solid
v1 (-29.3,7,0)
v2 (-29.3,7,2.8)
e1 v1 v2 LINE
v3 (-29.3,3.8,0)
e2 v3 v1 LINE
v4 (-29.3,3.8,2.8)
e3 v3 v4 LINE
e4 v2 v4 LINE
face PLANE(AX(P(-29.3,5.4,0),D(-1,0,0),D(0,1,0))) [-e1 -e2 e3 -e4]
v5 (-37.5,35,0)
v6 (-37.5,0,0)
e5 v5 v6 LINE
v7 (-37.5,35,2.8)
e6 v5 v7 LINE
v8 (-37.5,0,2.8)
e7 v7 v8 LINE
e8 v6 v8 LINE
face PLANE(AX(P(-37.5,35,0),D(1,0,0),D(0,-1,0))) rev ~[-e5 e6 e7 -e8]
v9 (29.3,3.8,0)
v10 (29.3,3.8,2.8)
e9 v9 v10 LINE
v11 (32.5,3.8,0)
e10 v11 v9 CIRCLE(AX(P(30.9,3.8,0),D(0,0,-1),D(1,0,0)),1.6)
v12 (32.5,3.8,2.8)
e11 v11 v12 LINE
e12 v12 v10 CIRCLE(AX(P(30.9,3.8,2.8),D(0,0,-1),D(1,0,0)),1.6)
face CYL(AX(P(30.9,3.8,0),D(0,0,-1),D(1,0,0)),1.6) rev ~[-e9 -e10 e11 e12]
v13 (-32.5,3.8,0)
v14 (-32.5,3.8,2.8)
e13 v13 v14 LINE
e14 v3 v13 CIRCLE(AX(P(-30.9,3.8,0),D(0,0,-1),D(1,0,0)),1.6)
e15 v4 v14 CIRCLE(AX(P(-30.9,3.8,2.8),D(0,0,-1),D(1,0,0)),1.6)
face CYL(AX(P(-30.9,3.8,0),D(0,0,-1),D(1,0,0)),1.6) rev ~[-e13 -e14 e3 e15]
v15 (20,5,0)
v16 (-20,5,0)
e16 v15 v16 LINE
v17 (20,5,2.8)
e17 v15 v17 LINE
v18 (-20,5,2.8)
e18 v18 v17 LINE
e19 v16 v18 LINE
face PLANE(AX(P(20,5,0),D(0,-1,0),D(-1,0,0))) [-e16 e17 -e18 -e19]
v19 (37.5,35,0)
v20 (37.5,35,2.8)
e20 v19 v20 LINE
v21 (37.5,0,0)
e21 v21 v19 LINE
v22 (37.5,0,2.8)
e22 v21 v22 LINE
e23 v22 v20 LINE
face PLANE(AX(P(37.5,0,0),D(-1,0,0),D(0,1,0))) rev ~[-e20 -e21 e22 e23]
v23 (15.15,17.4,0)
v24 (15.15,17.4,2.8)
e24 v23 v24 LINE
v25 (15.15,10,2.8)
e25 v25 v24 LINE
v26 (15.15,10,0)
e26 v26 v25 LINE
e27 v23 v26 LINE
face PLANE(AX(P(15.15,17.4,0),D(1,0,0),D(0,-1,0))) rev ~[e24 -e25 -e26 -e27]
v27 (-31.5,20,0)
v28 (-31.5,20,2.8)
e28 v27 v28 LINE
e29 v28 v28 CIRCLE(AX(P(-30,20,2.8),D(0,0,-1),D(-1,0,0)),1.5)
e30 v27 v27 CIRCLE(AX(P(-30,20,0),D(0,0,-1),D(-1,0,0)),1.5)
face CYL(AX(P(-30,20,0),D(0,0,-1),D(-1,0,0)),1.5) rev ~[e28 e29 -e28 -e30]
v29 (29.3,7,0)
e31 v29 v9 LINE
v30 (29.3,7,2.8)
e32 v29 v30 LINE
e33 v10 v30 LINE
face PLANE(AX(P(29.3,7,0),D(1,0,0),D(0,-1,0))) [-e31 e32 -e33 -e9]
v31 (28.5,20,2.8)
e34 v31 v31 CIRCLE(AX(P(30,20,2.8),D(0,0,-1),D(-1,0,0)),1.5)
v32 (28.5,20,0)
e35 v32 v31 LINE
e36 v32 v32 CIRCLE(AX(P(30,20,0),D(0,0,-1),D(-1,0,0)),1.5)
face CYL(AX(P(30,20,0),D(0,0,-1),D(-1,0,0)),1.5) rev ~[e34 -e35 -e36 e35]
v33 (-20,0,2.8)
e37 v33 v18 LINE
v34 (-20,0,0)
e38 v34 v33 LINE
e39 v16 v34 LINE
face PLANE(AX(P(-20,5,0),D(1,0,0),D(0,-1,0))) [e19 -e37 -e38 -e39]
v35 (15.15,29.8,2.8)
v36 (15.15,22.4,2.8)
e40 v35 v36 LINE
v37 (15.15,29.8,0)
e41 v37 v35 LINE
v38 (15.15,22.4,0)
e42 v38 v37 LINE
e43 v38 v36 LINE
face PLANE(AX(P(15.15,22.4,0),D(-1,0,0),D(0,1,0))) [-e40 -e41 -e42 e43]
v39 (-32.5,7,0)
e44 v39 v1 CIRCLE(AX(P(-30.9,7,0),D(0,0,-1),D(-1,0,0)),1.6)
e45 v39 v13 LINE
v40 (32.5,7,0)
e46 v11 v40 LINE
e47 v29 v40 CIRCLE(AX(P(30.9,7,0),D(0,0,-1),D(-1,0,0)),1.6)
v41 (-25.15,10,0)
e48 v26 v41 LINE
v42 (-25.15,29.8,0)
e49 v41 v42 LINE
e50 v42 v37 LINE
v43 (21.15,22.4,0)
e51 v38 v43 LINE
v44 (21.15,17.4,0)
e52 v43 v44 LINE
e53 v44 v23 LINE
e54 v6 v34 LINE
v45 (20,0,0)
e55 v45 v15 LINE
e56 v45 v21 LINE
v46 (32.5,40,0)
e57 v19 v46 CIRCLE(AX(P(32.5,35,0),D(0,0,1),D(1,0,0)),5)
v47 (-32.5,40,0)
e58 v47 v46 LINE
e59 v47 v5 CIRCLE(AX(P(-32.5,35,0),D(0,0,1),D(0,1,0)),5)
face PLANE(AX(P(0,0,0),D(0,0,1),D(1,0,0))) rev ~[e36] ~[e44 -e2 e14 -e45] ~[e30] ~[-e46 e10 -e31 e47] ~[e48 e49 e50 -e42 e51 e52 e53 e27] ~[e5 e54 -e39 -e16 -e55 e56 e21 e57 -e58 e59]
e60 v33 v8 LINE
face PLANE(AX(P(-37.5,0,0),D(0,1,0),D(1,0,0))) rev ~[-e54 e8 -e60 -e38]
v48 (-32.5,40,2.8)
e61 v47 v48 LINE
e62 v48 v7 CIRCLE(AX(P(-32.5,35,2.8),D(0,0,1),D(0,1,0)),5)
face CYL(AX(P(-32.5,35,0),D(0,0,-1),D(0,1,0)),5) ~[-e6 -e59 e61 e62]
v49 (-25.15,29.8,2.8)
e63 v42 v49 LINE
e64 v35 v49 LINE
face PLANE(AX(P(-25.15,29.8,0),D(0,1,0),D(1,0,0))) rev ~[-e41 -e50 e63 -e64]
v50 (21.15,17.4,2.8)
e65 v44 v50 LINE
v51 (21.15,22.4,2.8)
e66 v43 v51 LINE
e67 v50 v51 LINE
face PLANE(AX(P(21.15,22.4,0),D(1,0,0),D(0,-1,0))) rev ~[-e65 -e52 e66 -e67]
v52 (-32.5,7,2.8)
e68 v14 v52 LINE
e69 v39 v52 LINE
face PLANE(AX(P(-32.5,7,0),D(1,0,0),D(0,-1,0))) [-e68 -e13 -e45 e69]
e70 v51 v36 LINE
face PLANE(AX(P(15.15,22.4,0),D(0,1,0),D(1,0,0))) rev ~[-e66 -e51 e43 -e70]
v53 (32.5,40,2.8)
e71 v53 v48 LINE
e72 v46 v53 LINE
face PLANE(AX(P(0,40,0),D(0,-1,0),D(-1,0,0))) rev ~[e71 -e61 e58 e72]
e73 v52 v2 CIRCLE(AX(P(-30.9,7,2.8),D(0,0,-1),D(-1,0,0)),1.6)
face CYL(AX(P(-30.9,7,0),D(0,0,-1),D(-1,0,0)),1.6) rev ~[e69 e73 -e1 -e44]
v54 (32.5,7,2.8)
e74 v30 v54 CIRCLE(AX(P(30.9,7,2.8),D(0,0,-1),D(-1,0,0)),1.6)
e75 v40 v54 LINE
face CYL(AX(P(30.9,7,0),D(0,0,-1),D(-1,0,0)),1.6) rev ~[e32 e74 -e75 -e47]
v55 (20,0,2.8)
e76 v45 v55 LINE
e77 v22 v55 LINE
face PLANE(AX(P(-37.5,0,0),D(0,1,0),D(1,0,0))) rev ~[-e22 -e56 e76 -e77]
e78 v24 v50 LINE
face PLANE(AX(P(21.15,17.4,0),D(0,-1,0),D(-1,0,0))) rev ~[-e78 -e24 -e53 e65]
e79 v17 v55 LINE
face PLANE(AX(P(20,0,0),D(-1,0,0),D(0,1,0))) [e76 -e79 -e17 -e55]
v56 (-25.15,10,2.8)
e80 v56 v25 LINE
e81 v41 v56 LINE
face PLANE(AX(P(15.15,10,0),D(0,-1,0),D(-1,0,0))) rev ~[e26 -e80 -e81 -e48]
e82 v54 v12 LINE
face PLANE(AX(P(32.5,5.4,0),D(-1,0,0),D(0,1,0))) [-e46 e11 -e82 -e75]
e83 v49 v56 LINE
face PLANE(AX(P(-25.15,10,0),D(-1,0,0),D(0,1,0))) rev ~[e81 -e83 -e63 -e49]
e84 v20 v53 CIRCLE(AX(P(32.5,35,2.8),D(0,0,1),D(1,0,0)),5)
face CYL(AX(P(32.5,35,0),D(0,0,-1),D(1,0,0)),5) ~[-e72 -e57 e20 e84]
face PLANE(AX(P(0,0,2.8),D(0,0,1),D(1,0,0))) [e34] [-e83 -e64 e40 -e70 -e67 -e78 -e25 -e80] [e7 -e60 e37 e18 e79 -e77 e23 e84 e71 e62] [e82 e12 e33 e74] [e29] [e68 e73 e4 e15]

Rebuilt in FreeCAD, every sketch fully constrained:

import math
import FreeCAD as App
import Part
import Sketcher

V = App.Vector


def add_polygon(sketch, points):
    """Adds a closed chain of lines whose ends are joined by coincident constraints."""
    first, n = sketch.GeometryCount, len(points)
    for a, b in zip(points, points[1:] + points[:1]):
        sketch.addGeometry(Part.LineSegment(App.Vector(*a, 0), App.Vector(*b, 0)), False)
    for i in range(n):
        sketch.addConstraint(Sketcher.Constraint("Coincident", first + i, 2, first + (i + 1) % n, 1))

doc = App.newDocument("Part")
body = doc.addObject("PartDesign::Body", "Body")

sketch1 = doc.addObject("Sketcher::SketchObject", "Sketch")
body.addObject(sketch1)
sketch1.AttachmentSupport = (doc.XY_Plane, [""])
sketch1.MapMode = "FlatFace"
sketch1.addGeometry(Part.LineSegment(V(-37.5, 35, 0), V(-37.5, 0, 0)), False)
sketch1.addGeometry(Part.LineSegment(V(-37.5, 0, 0), V(37.5, 0, 0)), False)
sketch1.addGeometry(Part.LineSegment(V(37.5, 0, 0), V(37.5, 35, 0)), False)
sketch1.addGeometry(Part.ArcOfCircle(Part.Circle(V(32.5, 35, 0), V(0, 0, 1), 5), math.radians(0), math.radians(90)), False)
sketch1.addGeometry(Part.LineSegment(V(32.5, 40, 0), V(-32.5, 40, 0)), False)
sketch1.addGeometry(Part.ArcOfCircle(Part.Circle(V(-32.5, 35, 0), V(0, 0, 1), 5), math.radians(90), math.radians(180)), False)
sketch1.addConstraint(Sketcher.Constraint("Coincident", 0, 2, 1, 1))
sketch1.addConstraint(Sketcher.Constraint("Coincident", 1, 2, 2, 1))
sketch1.addConstraint(Sketcher.Constraint("Tangent", 2, 2, 3, 1))
sketch1.addConstraint(Sketcher.Constraint("Tangent", 3, 2, 4, 1))
sketch1.addConstraint(Sketcher.Constraint("Tangent", 4, 2, 5, 1))
sketch1.addConstraint(Sketcher.Constraint("Tangent", 5, 2, 0, 1))
sketch1.addConstraint(Sketcher.Constraint("Vertical", 0))
sketch1.addConstraint(Sketcher.Constraint("Horizontal", 1))
sketch1.addConstraint(Sketcher.Constraint("Vertical", 2))
sketch1.addConstraint(Sketcher.Constraint("Horizontal", 4))
sketch1.addConstraint(Sketcher.Constraint("Equal", 3, 5))
sketch1.addConstraint(Sketcher.Constraint("Symmetric", 0, 2, 1, 2, -1, 1))
sketch1.addConstraint(Sketcher.Constraint("Radius", 3, 5.0))
sketch1.addConstraint(Sketcher.Constraint("DistanceX", 1, 1, 1, 2, 75.0))
sketch1.addConstraint(Sketcher.Constraint("DistanceY", -1, 1, 3, 2, 40.0))
pad1 = doc.addObject("PartDesign::Pad", "Pad")
body.addObject(pad1)
pad1.Profile = sketch1
pad1.Length = 2.8

sketch2 = doc.addObject("Sketcher::SketchObject", "Sketch001")
body.addObject(sketch2)
sketch2.AttachmentSupport = (doc.XY_Plane, [""])
sketch2.MapMode = "FlatFace"
add_polygon(sketch2, [(20, 0), (-20, 0), (-20, 5), (20, 5)])
add_polygon(sketch2, [(15.15, 29.8), (15.15, 22.4), (21.15, 22.4), (21.15, 17.4), (15.15, 17.4), (15.15, 10), (-25.15, 10), (-25.15, 29.8)])
sketch2.addGeometry(Part.Circle(V(30, 20, 0), V(0, 0, 1), 1.5), False)
sketch2.addGeometry(Part.Circle(V(-30, 20, 0), V(0, 0, 1), 1.5), False)
sketch2.addGeometry(Part.LineSegment(V(32.5, 7, 0), V(32.5, 3.8, 0)), False)
sketch2.addGeometry(Part.ArcOfCircle(Part.Circle(V(30.9, 3.8, 0), V(0, 0, 1), 1.6), math.radians(180), math.radians(360)), False)
sketch2.addGeometry(Part.LineSegment(V(29.3, 3.8, 0), V(29.3, 7, 0)), False)
sketch2.addGeometry(Part.ArcOfCircle(Part.Circle(V(30.9, 7, 0), V(0, 0, 1), 1.6), math.radians(0), math.radians(180)), False)
sketch2.addGeometry(Part.LineSegment(V(-29.3, 7, 0), V(-29.3, 3.8, 0)), False)
sketch2.addGeometry(Part.ArcOfCircle(Part.Circle(V(-30.9, 3.8, 0), V(0, 0, 1), 1.6), math.radians(180), math.radians(360)), False)
sketch2.addGeometry(Part.LineSegment(V(-32.5, 3.8, 0), V(-32.5, 7, 0)), False)
sketch2.addGeometry(Part.ArcOfCircle(Part.Circle(V(-30.9, 7, 0), V(0, 0, 1), 1.6), math.radians(0), math.radians(180)), False)
sketch2.addConstraint(Sketcher.Constraint("Tangent", 14, 2, 15, 2))
sketch2.addConstraint(Sketcher.Constraint("Tangent", 15, 1, 16, 1))
sketch2.addConstraint(Sketcher.Constraint("Tangent", 16, 2, 17, 2))
sketch2.addConstraint(Sketcher.Constraint("Tangent", 17, 1, 14, 1))
sketch2.addConstraint(Sketcher.Constraint("Tangent", 18, 2, 19, 2))
sketch2.addConstraint(Sketcher.Constraint("Tangent", 19, 1, 20, 1))
sketch2.addConstraint(Sketcher.Constraint("Tangent", 20, 2, 21, 2))
sketch2.addConstraint(Sketcher.Constraint("Tangent", 21, 1, 18, 1))
sketch2.addConstraint(Sketcher.Constraint("Horizontal", 0))
sketch2.addConstraint(Sketcher.Constraint("Vertical", 1))
sketch2.addConstraint(Sketcher.Constraint("Horizontal", 2))
sketch2.addConstraint(Sketcher.Constraint("Vertical", 3))
sketch2.addConstraint(Sketcher.Constraint("Vertical", 4))
sketch2.addConstraint(Sketcher.Constraint("Horizontal", 5))
sketch2.addConstraint(Sketcher.Constraint("Vertical", 6))
sketch2.addConstraint(Sketcher.Constraint("Horizontal", 7))
sketch2.addConstraint(Sketcher.Constraint("Vertical", 8))
sketch2.addConstraint(Sketcher.Constraint("Horizontal", 9))
sketch2.addConstraint(Sketcher.Constraint("Vertical", 10))
sketch2.addConstraint(Sketcher.Constraint("Horizontal", 11))
sketch2.addConstraint(Sketcher.Constraint("Vertical", 14))
sketch2.addConstraint(Sketcher.Constraint("Vertical", 16))
sketch2.addConstraint(Sketcher.Constraint("Vertical", 18))
sketch2.addConstraint(Sketcher.Constraint("Vertical", 20))
sketch2.addConstraint(Sketcher.Constraint("Equal", 12, 13))
sketch2.addConstraint(Sketcher.Constraint("Equal", 17, 19))
sketch2.addConstraint(Sketcher.Constraint("Symmetric", 0, 2, 3, 2, -1, 1))
sketch2.addConstraint(Sketcher.Constraint("Symmetric", 12, 3, 13, 3, -2))
sketch2.addConstraint(Sketcher.Constraint("Symmetric", 15, 3, 19, 3, -2))
sketch2.addConstraint(Sketcher.Constraint("Horizontal", 17, 3, 21, 3))
sketch2.addConstraint(Sketcher.Constraint("Vertical", 4, 2, 7, 2))
sketch2.addConstraint(Sketcher.Constraint("Equal", 3, 6))
sketch2.addConstraint(Sketcher.Constraint("Equal", 4, 8))
sketch2.addConstraint(Sketcher.Constraint("Radius", 15, 1.6))
sketch2.addConstraint(Sketcher.Constraint("Diameter", 12, 3.0))
sketch2.addConstraint(Sketcher.Constraint("DistanceY", 14, 2, 14, 1, 3.2))
sketch2.addConstraint(Sketcher.Constraint("DistanceX", 0, 2, 0, 1, 40.0))
sketch2.addConstraint(Sketcher.Constraint("DistanceX", 5, 1, 5, 2, 6.0))
sketch2.addConstraint(Sketcher.Constraint("DistanceY", 1, 1, 1, 2, 5.0))
sketch2.addConstraint(Sketcher.Constraint("DistanceX", 9, 2, 9, 1, 40.3))
sketch2.addConstraint(Sketcher.Constraint("DistanceY", 4, 2, 4, 1, 7.4))
sketch2.addConstraint(Sketcher.Constraint("DistanceX", -1, 1, 12, 3, 30.0))
sketch2.addConstraint(Sketcher.Constraint("DistanceY", -1, 1, 12, 3, 20.0))
sketch2.addConstraint(Sketcher.Constraint("DistanceY", -1, 1, 17, 3, 7.0))
sketch2.addConstraint(Sketcher.Constraint("DistanceY", -1, 1, 8, 2, 10.0))
sketch2.addConstraint(Sketcher.Constraint("DistanceX", -1, 1, 15, 3, 30.9))
sketch2.addConstraint(Sketcher.Constraint("DistanceX", -1, 1, 4, 2, 15.15))
pocket1 = doc.addObject("PartDesign::Pocket", "Pocket")
body.addObject(pocket1)
pocket1.Profile = sketch2
pocket1.Length = 10
pocket1.Reversed = True

doc.recompute()
